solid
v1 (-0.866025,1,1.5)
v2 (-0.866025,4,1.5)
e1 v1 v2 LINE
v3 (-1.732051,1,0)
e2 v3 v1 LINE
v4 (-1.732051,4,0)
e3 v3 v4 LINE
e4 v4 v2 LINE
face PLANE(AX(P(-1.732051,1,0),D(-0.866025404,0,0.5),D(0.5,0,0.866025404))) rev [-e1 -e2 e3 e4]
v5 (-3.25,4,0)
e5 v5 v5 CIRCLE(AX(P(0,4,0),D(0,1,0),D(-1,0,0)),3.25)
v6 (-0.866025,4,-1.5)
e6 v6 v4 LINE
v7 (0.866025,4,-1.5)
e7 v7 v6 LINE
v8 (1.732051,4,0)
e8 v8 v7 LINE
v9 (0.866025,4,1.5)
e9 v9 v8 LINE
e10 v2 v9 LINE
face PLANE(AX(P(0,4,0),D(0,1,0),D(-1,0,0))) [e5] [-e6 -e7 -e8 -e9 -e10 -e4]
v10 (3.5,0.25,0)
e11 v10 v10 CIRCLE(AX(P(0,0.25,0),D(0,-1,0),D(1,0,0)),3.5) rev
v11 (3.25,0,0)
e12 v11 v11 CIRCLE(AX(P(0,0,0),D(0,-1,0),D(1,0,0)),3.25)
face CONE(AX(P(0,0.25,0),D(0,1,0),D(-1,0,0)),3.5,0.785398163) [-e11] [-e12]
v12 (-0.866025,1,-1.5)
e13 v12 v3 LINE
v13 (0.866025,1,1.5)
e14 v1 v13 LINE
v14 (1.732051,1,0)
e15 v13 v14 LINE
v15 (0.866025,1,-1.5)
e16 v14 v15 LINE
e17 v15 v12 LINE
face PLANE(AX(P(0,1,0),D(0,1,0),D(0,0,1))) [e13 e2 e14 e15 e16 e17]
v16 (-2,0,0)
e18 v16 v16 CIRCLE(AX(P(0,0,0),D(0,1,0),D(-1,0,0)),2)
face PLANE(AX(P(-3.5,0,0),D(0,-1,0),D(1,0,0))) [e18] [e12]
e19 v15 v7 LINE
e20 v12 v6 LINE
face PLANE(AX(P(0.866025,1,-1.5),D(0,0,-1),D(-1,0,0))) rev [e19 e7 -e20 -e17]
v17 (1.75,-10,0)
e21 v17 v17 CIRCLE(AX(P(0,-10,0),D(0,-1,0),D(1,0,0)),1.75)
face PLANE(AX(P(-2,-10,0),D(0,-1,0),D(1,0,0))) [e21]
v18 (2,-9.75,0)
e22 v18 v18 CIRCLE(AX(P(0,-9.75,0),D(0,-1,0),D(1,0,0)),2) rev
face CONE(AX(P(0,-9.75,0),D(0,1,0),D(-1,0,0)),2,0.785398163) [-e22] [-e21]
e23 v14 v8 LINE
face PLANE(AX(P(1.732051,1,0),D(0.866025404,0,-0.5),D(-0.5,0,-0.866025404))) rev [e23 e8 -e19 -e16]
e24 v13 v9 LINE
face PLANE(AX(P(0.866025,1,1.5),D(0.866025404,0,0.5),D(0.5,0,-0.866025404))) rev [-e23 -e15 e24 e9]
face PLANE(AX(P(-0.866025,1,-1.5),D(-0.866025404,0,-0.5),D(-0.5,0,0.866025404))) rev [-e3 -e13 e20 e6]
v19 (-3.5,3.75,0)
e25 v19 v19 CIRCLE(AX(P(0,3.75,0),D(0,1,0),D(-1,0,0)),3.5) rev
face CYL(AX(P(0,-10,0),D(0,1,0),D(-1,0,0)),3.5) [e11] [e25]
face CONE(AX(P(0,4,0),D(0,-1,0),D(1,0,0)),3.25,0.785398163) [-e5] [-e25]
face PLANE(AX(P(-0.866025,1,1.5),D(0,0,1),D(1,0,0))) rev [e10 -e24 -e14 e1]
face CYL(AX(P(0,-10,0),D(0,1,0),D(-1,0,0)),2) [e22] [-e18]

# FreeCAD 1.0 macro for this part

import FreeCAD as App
import Part
import Sketcher
Q = App.Units.Quantity


def edges_at(feature, points):
    """Names of the edges that pass closest to the given points."""
    edges = feature.Shape.Edges
    near = lambda p: min(range(len(edges)), key=lambda i: edges[i].distToShape(Part.Vertex(*p))[0])
    return sorted({f"Edge{near(p) + 1}" for p in points})

doc = App.newDocument("Part")
body = doc.addObject("PartDesign::Body", "Body")

# Sketch on XY plane
sketch1 = body.newObject("Sketcher::SketchObject", "Sketch")
sketch1.AttachmentSupport = (doc.getObject("XY_Plane"), [""])
sketch1.MapMode = "FlatFace"
sketch1.addGeometry([
    Part.LineSegment(App.Vector(0, 4, 0), App.Vector(-3.5, 4, 0)),  # 0
    Part.LineSegment(App.Vector(-3.5, 4, 0), App.Vector(-3.5, 0, 0)),  # 1
    Part.LineSegment(App.Vector(-3.5, 0, 0), App.Vector(-2, 0, 0)),  # 2
    Part.LineSegment(App.Vector(-2, 0, 0), App.Vector(-2, -10, 0)),  # 3
    Part.LineSegment(App.Vector(-2, -10, 0), App.Vector(0, -10, 0)),  # 4
    Part.LineSegment(App.Vector(0, -10, 0), App.Vector(0, 4, 0)),  # 5
], False)
sketch1.addConstraint([
    Sketcher.Constraint("Coincident", 0, 2, 1, 1),
    Sketcher.Constraint("Coincident", 1, 2, 2, 1),
    Sketcher.Constraint("Coincident", 2, 2, 3, 1),
    Sketcher.Constraint("Coincident", 3, 2, 4, 1),
    Sketcher.Constraint("Coincident", 4, 2, 5, 1),
    Sketcher.Constraint("Coincident", 5, 2, 0, 1),
    Sketcher.Constraint("Horizontal", 0),
    Sketcher.Constraint("Vertical", 1),
    Sketcher.Constraint("Horizontal", 2),
    Sketcher.Constraint("Vertical", 3),
    Sketcher.Constraint("Horizontal", 4),
    Sketcher.Constraint("Vertical", 5),
    Sketcher.Constraint("PointOnObject", 1, 2, -1),
    Sketcher.Constraint("PointOnObject", 4, 2, -2),
    Sketcher.Constraint("DistanceX", 4, 1, 4, 2, Q("2 mm")),
    Sketcher.Constraint("DistanceY", 1, 2, 1, 1, Q("4 mm")),
    Sketcher.Constraint("DistanceY", 3, 2, 3, 1, Q("10 mm")),
    Sketcher.Constraint("DistanceX", 0, 2, 0, 1, Q("3.5 mm")),
])
revolution = body.newObject("PartDesign::Revolution", "Revolution")
revolution.Profile = sketch1
revolution.ReferenceAxis = (sketch1, ["V_Axis"])
revolution.Angle = 360

# Sketch on XZ plane
sketch2 = body.newObject("Sketcher::SketchObject", "Sketch001")
sketch2.AttachmentSupport = (doc.getObject("XZ_Plane"), [""])
sketch2.MapMode = "FlatFace"
sketch2.AttachmentOffset = App.Placement(App.Vector(0, 0, -4), App.Rotation())
sketch2.addGeometry([
    Part.LineSegment(App.Vector(0.866025, -1.5, 0), App.Vector(-0.866025, -1.5, 0)),  # 0
    Part.LineSegment(App.Vector(-0.866025, -1.5, 0), App.Vector(-1.732051, 0, 0)),  # 1
    Part.LineSegment(App.Vector(-1.732051, 0, 0), App.Vector(-0.866025, 1.5, 0)),  # 2
    Part.LineSegment(App.Vector(-0.866025, 1.5, 0), App.Vector(0.866025, 1.5, 0)),  # 3
    Part.LineSegment(App.Vector(0.866025, 1.5, 0), App.Vector(1.732051, 0, 0)),  # 4
    Part.LineSegment(App.Vector(1.732051, 0, 0), App.Vector(0.866025, -1.5, 0)),  # 5
], False)
sketch2.addConstraint([
    Sketcher.Constraint("Coincident", 0, 2, 1, 1),
    Sketcher.Constraint("Coincident", 1, 2, 2, 1),
    Sketcher.Constraint("Coincident", 2, 2, 3, 1),
    Sketcher.Constraint("Coincident", 3, 2, 4, 1),
    Sketcher.Constraint("Coincident", 4, 2, 5, 1),
    Sketcher.Constraint("Coincident", 5, 2, 0, 1),
    Sketcher.Constraint("Horizontal", 0),
    Sketcher.Constraint("Horizontal", 3),
    Sketcher.Constraint("Symmetric", 0, 2, 3, 2, -1, 1),
    Sketcher.Constraint("Symmetric", 1, 2, 4, 2, -1, 1),
    Sketcher.Constraint("PointOnObject", 1, 2, -1),
    Sketcher.Constraint("Parallel", 2, 5),
    Sketcher.Constraint("Vertical", 0, 2, 2, 2),
    Sketcher.Constraint("Angle", 1, Q("120 deg")),
    Sketcher.Constraint("DistanceY", 0, 2, 2, 2, Q("3 mm")),
    Sketcher.Constraint("DistanceX", 0, 2, 0, 1, Q("1.732051 mm")),
])
pocket1 = body.newObject("PartDesign::Pocket", "Pocket")
pocket1.Profile = sketch2
pocket1.Length = 3
pocket1.Reversed = True
doc.recompute()

chamfer = body.newObject("PartDesign::Chamfer", "Chamfer")
chamfer.Base = (pocket1, edges_at(pocket1, [(2, -10, 0), (3.5, 0, 0), (3.5, 4, 0)]))
chamfer.Size = 0.25

doc.recompute()
